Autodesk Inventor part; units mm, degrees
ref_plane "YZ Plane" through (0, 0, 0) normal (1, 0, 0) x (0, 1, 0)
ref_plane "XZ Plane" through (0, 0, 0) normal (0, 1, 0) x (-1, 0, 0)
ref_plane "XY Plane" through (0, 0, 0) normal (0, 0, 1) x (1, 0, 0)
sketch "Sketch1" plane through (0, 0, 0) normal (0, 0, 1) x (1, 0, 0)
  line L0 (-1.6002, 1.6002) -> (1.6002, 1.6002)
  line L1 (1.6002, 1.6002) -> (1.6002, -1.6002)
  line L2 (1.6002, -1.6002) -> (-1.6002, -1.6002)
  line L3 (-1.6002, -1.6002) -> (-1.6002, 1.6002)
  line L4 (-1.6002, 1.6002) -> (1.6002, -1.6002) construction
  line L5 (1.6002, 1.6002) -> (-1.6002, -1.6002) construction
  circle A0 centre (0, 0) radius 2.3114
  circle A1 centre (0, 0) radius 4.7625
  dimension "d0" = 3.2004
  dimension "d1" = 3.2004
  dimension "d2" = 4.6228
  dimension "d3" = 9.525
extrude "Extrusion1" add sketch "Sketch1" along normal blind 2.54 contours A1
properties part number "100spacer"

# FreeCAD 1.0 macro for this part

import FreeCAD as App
import Part
import Sketcher

V = App.Vector
Q = App.Units.Quantity

doc = App.newDocument("Part")
body = doc.addObject("PartDesign::Body", "Body")

# Sketch on XY plane
sketch1 = body.newObject("Sketcher::SketchObject", "Sketch")
sketch1.AttachmentSupport = (doc.getObject("XY_Plane"), [""])
sketch1.MapMode = "FlatFace"
sketch1.addGeometry([
    Part.Circle(V(0, 0, 0), V(0, 0, 1), 4.8),
    Part.Circle(V(0, 0, 0), V(0, 0, 1), 2.3),
], False)
sketch1.addConstraint([
    Sketcher.Constraint("Coincident", 0, 3, -1, 1),
    Sketcher.Constraint("Coincident", 1, 3, -1, 1),
    Sketcher.Constraint("Diameter", 0, Q("0.375 in")),
    Sketcher.Constraint("Diameter", 1, Q("0.182 in")),
])
pad1 = body.newObject("PartDesign::Pad", "Pad")
pad1.Profile = sketch1
pad1.Length = Q("0.1 in")

doc.recompute()
